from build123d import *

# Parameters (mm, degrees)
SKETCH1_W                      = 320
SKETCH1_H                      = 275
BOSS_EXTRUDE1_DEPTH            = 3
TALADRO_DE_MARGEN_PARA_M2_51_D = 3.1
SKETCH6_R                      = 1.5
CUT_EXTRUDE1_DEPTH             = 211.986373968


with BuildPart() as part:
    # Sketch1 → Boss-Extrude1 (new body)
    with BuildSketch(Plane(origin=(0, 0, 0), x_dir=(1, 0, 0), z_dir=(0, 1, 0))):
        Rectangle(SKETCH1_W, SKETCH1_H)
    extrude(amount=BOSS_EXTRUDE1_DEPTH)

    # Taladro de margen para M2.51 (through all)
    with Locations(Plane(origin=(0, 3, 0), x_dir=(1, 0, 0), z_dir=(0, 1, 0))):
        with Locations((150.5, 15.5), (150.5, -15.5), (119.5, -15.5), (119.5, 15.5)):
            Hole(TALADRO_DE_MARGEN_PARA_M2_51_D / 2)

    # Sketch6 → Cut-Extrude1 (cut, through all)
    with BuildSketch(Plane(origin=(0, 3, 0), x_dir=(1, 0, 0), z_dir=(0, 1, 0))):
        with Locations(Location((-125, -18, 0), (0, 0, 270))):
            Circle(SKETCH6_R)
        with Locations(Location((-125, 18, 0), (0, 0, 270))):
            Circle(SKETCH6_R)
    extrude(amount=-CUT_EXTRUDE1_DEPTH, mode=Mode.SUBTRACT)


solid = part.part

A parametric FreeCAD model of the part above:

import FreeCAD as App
import Part
import Sketcher

V = App.Vector
Q = App.Units.Quantity

doc = App.newDocument("Part")
body = doc.addObject("PartDesign::Body", "Body")

# Sketch on XZ plane
sketch1 = body.newObject("Sketcher::SketchObject", "Sketch")
sketch1.AttachmentSupport = (doc.getObject("XZ_Plane"), [""])
sketch1.MapMode = "FlatFace"
sketch1.addGeometry([
    Part.LineSegment(V(-160, -138, 0), V(-160, 138, 0)),
    Part.LineSegment(V(-160, 138, 0), V(160, 138, 0)),
    Part.LineSegment(V(160, 138, 0), V(160, -138, 0)),
    Part.LineSegment(V(160, -138, 0), V(-160, -138, 0)),
], False)
sketch1.addConstraint([
    Sketcher.Constraint("Coincident", 0, 2, 1, 1),
    Sketcher.Constraint("Coincident", 1, 2, 2, 1),
    Sketcher.Constraint("Coincident", 2, 2, 3, 1),
    Sketcher.Constraint("Coincident", 3, 2, 0, 1),
    Sketcher.Constraint("Vertical", 0),
    Sketcher.Constraint("Horizontal", 1),
    Sketcher.Constraint("Vertical", 2),
    Sketcher.Constraint("Horizontal", 3),
    Sketcher.Constraint("Symmetric", 0, 2, 2, 2, -1, 1),
    Sketcher.Constraint("DistanceX", 1, 1, 1, 2, Q("320 mm")),
    Sketcher.Constraint("DistanceY", 0, 1, 0, 2, Q("275 mm")),
])
pad1 = body.newObject("PartDesign::Pad", "Pad")
pad1.Profile = sketch1
pad1.Length = 3
pad1.Reversed = True

# Sketch on XZ plane
sketch2 = body.newObject("Sketcher::SketchObject", "Sketch001")
sketch2.AttachmentSupport = (doc.getObject("XZ_Plane"), [""])
sketch2.MapMode = "FlatFace"
sketch2.AttachmentOffset = App.Placement(V(0, 0, -3), App.Rotation())
sketch2.addGeometry([
    Part.Circle(V(150.5, -15.5, 0), V(0, 0, 1), 1.6),
    Part.Circle(V(150.5, 15.5, 0), V(0, 0, 1), 1.6),
    Part.Circle(V(119.5, 15.5, 0), V(0, 0, 1), 1.6),
    Part.Circle(V(119.5, -15.5, 0), V(0, 0, 1), 1.6),
], False)
sketch2.addConstraint([
    Sketcher.Constraint("Equal", 0, 1),
    Sketcher.Constraint("Equal", 1, 2),
    Sketcher.Constraint("Equal", 2, 3),
    Sketcher.Constraint("Symmetric", 0, 3, 1, 3, -1),
    Sketcher.Constraint("Symmetric", 2, 3, 3, 3, -1),
    Sketcher.Constraint("Horizontal", 1, 3, 2, 3),
    Sketcher.Constraint("Diameter", 0, Q("3.1 mm")),
    Sketcher.Constraint("DistanceY", 0, 3, 1, 3, Q("31 mm")),
    Sketcher.Constraint("DistanceX", 2, 3, 1, 3, Q("31 mm")),
    Sketcher.Constraint("DistanceX", -1, 1, 0, 3, Q("150.5 mm")),
])
doc.recompute()
hole = body.newObject("PartDesign::Hole", "Hole")
hole.Profile = sketch2
hole.ThreadType = "None"
hole.Diameter = 3.1
hole.DepthType = "ThroughAll"
hole.Reversed = True

# Sketch on XZ plane
sketch3 = body.newObject("Sketcher::SketchObject", "Sketch002")
sketch3.AttachmentSupport = (doc.getObject("XZ_Plane"), [""])
sketch3.MapMode = "FlatFace"
sketch3.AttachmentOffset = App.Placement(V(0, 0, -3), App.Rotation())
sketch3.addGeometry([
    Part.Circle(V(-125, 18, 0), V(0, 0, 1), 1.5),
    Part.Circle(V(-125, -18, 0), V(0, 0, 1), 1.5),
], False)
sketch3.addConstraint([
    Sketcher.Constraint("Equal", 0, 1),
    Sketcher.Constraint("Symmetric", 0, 3, 1, 3, -1),
    Sketcher.Constraint("Diameter", 0, Q("3 mm")),
    Sketcher.Constraint("DistanceX", 0, 3, -1, 1, Q("125 mm")),
    Sketcher.Constraint("DistanceY", -1, 1, 0, 3, Q("18 mm")),
])
pocket1 = body.newObject("PartDesign::Pocket", "Pocket")
pocket1.Profile = sketch3
pocket1.Type = "ThroughAll"
pocket1.Reversed = True

doc.recompute()
